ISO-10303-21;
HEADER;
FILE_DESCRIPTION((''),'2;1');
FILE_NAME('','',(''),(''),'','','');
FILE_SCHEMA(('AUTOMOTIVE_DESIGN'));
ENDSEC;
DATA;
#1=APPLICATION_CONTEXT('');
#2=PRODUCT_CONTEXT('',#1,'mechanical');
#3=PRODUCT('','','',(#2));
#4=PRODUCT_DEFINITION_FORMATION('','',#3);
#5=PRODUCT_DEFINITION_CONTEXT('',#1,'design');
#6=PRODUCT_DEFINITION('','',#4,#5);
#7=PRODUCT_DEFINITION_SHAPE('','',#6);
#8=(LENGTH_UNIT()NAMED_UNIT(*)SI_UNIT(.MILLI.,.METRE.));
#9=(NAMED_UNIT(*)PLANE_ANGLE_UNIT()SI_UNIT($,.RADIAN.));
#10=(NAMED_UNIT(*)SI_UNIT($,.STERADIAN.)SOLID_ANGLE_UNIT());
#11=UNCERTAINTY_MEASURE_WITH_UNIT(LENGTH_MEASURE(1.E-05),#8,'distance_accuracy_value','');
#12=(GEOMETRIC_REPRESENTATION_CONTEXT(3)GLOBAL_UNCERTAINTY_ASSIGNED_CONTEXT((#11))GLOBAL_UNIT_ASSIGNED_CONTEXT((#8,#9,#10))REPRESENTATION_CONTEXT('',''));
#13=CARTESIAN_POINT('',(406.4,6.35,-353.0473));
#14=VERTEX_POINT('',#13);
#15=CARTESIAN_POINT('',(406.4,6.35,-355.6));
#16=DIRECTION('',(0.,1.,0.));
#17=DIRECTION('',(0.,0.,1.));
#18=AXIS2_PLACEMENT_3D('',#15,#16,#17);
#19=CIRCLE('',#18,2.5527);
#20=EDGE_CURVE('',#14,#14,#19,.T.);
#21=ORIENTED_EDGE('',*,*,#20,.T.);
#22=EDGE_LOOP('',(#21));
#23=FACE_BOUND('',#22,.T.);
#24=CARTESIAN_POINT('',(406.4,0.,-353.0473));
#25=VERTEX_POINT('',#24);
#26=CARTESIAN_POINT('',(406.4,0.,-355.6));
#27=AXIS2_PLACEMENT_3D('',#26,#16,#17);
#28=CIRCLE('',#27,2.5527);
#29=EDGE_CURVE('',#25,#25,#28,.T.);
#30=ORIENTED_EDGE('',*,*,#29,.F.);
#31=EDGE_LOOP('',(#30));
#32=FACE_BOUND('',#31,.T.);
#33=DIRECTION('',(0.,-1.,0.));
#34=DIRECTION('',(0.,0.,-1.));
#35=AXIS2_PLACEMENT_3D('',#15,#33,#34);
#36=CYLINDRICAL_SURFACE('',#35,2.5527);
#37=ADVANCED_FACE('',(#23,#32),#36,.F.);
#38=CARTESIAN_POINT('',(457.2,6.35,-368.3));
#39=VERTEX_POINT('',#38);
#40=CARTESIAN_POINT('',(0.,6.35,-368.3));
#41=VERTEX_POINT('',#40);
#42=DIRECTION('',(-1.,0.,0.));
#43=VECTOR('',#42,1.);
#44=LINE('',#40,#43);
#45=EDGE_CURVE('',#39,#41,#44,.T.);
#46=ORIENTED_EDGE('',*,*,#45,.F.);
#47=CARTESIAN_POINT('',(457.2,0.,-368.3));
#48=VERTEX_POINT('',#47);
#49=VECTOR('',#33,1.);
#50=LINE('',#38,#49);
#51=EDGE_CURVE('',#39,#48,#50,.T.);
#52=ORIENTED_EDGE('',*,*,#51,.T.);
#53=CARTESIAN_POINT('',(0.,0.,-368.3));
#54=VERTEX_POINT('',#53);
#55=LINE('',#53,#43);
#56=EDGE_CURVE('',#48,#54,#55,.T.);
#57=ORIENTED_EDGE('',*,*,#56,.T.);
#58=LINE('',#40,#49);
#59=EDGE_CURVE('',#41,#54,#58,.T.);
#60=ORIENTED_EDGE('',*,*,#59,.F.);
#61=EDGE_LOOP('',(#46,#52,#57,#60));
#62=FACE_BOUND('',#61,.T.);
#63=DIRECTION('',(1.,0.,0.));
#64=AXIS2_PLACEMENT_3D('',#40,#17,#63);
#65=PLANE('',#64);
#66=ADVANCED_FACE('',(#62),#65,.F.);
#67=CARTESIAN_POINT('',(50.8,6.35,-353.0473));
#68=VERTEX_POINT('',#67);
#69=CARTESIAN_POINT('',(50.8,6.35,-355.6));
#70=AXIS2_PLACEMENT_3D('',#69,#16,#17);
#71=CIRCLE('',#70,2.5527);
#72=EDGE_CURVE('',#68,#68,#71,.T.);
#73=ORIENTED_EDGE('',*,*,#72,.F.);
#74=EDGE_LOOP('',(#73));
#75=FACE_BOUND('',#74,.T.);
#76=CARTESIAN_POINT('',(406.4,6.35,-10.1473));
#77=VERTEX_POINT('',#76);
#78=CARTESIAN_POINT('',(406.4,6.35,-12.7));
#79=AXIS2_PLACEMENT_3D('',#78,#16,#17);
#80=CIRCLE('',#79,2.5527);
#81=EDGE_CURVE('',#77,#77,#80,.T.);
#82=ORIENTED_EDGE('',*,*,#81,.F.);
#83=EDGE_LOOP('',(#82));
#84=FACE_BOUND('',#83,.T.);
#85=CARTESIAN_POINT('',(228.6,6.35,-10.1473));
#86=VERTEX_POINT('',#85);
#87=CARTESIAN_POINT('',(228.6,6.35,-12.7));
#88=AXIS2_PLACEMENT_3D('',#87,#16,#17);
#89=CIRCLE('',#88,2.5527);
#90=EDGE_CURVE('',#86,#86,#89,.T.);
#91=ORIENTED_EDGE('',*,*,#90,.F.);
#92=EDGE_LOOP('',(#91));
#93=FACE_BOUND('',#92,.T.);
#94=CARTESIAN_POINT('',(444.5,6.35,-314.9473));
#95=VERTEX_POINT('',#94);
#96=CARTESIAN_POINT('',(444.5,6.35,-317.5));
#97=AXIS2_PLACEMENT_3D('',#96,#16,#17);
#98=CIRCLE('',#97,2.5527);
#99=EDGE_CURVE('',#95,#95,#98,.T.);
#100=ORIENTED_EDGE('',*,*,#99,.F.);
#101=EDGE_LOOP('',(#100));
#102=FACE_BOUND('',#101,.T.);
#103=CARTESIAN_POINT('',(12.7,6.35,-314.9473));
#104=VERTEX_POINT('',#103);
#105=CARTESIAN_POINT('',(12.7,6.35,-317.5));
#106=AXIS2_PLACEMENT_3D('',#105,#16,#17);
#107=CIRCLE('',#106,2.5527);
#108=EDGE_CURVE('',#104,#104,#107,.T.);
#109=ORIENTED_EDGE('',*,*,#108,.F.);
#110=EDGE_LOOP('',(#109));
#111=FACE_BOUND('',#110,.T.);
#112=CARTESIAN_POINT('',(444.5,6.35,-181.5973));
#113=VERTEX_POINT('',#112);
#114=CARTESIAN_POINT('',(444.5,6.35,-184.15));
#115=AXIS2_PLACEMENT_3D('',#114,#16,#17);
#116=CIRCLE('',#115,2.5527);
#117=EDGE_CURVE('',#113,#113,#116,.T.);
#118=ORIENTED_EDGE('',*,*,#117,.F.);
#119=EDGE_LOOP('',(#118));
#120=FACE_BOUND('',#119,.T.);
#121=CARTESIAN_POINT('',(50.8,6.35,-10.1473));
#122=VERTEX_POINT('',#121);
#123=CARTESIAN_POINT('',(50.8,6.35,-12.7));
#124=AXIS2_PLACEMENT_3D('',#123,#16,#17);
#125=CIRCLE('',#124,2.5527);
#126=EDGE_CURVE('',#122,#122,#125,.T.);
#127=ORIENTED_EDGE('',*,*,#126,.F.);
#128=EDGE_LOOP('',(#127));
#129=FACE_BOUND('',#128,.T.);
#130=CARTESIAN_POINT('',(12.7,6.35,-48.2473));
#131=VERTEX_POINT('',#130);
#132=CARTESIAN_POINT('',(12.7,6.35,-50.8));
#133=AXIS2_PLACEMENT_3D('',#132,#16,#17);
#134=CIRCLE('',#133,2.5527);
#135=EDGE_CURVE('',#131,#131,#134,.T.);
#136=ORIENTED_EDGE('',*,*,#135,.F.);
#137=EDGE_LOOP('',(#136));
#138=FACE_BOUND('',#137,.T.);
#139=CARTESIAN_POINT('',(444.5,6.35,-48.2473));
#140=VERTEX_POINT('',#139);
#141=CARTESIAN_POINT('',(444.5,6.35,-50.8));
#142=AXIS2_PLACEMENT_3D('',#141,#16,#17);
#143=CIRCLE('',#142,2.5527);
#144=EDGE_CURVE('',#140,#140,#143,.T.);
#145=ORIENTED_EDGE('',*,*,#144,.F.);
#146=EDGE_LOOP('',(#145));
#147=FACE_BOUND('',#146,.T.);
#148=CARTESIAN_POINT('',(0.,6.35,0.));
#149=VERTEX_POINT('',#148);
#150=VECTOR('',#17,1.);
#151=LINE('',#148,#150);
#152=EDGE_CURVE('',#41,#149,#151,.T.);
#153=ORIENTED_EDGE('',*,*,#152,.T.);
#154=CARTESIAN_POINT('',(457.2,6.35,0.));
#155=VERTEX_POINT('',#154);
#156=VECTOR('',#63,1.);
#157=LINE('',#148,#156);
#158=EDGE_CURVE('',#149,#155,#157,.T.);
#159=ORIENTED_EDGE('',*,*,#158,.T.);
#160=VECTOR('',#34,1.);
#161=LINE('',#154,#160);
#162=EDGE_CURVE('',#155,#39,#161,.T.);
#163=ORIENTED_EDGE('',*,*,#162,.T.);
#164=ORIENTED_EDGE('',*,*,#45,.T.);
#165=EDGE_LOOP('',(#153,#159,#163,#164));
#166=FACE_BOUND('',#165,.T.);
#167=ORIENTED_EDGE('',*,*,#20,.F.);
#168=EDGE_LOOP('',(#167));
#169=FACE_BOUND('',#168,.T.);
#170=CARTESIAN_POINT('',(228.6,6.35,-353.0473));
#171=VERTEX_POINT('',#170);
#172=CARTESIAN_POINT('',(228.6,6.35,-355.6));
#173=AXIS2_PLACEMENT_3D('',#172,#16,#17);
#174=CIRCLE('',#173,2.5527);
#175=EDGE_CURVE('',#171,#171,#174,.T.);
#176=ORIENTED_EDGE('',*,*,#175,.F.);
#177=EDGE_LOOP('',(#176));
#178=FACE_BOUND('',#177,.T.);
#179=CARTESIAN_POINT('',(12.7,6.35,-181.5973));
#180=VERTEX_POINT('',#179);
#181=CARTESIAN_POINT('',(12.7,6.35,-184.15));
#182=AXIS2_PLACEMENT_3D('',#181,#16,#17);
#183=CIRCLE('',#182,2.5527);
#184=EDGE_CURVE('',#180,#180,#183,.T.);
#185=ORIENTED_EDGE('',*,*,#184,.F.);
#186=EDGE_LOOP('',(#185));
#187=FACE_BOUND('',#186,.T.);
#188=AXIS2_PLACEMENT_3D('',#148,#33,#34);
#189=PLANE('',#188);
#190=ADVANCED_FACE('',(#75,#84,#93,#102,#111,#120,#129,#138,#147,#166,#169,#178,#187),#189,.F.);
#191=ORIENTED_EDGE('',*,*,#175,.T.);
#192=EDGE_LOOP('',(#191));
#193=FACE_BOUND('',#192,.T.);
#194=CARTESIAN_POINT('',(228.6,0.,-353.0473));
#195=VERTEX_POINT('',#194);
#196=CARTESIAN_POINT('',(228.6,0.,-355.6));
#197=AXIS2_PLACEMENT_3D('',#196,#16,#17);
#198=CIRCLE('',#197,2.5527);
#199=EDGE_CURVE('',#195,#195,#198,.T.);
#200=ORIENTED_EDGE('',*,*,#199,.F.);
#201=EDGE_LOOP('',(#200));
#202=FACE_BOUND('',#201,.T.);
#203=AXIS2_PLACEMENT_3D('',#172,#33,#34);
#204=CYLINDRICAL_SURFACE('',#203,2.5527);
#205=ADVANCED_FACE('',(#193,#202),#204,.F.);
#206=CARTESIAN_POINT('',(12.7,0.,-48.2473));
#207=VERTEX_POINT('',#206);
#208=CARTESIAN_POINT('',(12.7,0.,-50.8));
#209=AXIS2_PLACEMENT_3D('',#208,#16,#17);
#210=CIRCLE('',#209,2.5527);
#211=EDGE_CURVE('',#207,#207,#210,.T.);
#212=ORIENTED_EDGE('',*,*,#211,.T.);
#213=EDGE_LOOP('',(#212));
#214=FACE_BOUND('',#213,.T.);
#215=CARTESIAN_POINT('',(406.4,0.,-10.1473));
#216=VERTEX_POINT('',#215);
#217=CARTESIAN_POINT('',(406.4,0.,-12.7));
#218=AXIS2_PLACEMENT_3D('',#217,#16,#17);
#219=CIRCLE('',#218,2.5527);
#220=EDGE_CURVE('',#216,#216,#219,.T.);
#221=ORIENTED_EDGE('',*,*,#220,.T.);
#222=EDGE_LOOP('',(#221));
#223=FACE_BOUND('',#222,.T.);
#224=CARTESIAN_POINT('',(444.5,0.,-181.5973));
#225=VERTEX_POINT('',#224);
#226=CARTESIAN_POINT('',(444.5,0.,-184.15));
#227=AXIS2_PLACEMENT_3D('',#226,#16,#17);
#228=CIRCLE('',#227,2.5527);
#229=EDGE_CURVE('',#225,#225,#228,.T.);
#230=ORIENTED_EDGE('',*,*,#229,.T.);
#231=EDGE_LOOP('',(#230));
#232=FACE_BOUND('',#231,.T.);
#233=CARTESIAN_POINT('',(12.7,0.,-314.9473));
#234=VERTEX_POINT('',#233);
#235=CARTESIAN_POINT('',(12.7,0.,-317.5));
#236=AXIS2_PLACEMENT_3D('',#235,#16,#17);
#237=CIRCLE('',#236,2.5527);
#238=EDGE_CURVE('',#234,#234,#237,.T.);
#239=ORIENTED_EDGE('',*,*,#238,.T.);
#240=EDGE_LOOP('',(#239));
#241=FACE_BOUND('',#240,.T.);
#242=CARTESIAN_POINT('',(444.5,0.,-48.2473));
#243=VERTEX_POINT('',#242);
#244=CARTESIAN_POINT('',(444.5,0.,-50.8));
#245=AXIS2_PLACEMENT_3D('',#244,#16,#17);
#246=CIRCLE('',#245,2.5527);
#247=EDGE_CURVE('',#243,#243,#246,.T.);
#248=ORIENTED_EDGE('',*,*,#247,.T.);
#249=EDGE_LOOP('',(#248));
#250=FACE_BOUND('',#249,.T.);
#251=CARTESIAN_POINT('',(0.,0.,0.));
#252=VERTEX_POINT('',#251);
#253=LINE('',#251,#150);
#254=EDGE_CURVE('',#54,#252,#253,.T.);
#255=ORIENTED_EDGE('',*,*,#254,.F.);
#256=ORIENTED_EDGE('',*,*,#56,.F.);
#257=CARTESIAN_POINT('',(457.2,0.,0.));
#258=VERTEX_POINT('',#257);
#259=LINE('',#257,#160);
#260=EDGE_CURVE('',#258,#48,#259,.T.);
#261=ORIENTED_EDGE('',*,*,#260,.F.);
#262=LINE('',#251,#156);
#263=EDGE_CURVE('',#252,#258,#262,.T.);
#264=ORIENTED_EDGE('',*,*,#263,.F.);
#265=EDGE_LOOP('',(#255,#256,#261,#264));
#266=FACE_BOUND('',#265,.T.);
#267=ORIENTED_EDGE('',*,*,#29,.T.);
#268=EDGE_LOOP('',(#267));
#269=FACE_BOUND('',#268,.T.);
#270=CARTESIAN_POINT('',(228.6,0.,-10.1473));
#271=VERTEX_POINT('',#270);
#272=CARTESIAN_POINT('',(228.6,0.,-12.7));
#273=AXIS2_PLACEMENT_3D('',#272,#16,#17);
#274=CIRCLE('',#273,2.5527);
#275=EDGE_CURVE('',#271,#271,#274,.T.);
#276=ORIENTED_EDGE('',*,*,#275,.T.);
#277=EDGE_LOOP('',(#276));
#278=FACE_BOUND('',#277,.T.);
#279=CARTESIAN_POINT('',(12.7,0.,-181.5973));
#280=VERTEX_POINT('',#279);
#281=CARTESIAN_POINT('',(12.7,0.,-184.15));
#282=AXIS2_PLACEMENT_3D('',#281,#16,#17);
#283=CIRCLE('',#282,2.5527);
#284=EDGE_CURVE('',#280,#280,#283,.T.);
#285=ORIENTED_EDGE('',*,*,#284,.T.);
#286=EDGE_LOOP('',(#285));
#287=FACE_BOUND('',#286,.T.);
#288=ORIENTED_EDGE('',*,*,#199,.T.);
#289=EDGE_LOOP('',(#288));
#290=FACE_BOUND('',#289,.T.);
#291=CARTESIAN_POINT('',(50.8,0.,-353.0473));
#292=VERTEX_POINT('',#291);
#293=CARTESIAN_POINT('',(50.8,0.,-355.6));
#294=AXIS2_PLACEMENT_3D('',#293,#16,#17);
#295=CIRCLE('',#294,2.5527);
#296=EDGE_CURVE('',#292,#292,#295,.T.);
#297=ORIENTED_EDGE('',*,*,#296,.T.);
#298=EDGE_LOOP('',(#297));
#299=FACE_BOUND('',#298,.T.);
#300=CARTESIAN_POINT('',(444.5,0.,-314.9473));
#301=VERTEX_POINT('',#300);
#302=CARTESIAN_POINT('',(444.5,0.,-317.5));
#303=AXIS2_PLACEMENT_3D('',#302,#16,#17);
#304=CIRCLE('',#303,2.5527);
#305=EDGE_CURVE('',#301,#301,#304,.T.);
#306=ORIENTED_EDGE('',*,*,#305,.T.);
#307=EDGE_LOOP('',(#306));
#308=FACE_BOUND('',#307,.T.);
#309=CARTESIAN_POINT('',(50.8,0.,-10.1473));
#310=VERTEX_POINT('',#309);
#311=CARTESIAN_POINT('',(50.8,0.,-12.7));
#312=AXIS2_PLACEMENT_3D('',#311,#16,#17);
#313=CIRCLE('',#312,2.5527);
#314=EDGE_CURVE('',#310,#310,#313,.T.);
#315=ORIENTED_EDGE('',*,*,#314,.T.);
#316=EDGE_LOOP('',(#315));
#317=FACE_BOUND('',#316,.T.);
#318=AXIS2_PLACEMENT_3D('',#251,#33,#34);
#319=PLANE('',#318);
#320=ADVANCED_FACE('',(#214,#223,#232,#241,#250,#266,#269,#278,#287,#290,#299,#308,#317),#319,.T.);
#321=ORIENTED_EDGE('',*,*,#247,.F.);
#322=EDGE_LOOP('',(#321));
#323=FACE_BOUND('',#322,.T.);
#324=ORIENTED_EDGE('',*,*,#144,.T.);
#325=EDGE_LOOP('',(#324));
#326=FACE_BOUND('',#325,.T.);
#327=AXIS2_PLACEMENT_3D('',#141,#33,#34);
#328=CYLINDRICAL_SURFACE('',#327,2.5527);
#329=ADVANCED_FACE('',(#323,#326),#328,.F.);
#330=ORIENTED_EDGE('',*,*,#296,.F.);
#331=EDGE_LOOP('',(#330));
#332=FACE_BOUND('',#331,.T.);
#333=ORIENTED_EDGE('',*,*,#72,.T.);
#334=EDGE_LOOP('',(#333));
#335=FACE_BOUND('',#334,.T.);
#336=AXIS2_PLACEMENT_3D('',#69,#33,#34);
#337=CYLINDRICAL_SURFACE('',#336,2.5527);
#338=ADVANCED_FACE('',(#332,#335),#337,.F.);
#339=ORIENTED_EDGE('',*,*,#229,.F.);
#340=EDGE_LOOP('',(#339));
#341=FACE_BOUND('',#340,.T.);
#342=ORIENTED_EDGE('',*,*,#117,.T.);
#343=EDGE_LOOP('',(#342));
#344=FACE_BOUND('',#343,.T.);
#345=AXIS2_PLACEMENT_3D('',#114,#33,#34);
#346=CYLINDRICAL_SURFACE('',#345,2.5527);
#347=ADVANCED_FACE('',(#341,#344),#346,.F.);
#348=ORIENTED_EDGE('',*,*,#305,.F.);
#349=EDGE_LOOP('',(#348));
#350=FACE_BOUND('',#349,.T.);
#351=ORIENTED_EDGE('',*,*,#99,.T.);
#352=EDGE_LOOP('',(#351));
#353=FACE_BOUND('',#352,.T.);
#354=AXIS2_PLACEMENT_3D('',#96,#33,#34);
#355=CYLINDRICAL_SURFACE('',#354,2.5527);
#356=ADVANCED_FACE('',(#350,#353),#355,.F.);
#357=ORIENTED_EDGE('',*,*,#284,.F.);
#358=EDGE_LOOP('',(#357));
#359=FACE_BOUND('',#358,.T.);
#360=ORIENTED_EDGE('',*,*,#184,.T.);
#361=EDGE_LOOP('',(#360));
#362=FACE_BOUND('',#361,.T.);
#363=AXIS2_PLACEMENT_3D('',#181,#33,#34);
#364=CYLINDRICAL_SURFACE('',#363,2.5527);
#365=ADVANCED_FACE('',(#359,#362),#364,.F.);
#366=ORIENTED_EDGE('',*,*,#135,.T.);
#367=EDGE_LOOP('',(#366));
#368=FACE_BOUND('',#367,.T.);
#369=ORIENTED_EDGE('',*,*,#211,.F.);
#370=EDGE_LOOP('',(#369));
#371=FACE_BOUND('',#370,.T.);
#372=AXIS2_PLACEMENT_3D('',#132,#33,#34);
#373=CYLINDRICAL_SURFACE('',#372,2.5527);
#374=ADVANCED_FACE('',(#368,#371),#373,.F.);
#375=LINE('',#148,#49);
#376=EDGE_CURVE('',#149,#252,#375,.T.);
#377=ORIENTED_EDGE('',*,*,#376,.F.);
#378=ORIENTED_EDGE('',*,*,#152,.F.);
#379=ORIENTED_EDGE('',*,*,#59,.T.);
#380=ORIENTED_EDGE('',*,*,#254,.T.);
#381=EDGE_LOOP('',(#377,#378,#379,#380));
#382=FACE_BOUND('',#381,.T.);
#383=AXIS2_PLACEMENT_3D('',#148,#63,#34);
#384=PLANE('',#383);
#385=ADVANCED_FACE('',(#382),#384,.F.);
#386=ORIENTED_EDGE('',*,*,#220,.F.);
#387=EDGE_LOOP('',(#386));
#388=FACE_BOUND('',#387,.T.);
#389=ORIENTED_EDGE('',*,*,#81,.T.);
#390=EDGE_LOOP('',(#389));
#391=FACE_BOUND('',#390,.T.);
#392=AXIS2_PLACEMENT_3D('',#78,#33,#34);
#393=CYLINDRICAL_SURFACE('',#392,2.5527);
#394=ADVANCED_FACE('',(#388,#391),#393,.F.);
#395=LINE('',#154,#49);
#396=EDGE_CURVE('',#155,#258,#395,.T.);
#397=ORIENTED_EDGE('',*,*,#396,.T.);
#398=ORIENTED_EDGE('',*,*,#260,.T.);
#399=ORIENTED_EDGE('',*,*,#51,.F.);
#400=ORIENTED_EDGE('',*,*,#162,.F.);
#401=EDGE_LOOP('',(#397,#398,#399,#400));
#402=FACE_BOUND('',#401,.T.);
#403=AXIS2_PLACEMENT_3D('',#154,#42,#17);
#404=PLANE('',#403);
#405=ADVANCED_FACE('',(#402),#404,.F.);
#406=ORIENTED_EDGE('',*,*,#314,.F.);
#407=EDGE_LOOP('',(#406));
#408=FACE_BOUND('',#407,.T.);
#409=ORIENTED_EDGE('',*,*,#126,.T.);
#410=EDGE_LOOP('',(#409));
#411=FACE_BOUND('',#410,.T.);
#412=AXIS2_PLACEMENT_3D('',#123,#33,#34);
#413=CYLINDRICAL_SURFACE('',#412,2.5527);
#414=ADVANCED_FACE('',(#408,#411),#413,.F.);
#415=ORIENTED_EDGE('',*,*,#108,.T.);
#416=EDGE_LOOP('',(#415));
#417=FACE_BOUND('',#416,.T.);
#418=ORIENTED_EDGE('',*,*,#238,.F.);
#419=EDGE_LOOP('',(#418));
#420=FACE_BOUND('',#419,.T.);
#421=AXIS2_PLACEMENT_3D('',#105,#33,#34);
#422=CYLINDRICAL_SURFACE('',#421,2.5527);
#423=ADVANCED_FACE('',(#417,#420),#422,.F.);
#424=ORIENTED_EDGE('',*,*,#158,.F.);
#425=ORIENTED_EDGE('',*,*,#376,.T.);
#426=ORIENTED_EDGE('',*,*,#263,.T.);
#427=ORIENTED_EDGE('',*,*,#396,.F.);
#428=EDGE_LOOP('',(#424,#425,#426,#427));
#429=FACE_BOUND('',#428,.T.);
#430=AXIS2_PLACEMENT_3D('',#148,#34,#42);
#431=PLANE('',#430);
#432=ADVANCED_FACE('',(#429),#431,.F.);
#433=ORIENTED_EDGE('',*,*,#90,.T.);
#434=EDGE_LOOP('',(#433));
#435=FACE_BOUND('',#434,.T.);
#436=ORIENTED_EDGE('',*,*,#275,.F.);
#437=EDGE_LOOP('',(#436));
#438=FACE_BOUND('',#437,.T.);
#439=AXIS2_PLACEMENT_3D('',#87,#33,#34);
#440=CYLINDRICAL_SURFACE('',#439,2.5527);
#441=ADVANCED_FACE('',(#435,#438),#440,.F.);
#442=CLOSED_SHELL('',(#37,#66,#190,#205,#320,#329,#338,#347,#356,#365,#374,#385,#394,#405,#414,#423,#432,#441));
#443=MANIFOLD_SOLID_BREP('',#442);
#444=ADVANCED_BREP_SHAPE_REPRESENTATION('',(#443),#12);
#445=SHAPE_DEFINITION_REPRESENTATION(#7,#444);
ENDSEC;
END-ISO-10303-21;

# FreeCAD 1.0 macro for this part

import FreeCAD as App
import Part
import Sketcher
from FreeCAD import Vector
Q = App.Units.Quantity

doc = App.newDocument("Part")
body = doc.addObject("PartDesign::Body", "Body")

sketch1 = body.newObject("Sketcher::SketchObject", "Sketch")
sketch1.AttachmentSupport = (doc.getObject("XZ_Plane"), [""])
sketch1.MapMode = "FlatFace"
sketch1.addGeometry([
    Part.LineSegment(Vector(0, -368.3, 0), Vector(0, 0, 0)),
    Part.LineSegment(Vector(0, 0, 0), Vector(457.2, 0, 0)),
    Part.LineSegment(Vector(457.2, 0, 0), Vector(457.2, -368.3, 0)),
    Part.LineSegment(Vector(457.2, -368.3, 0), Vector(0, -368.3, 0)),
    Part.Circle(Vector(50.8, -12.7, 0), Vector(0, 0, 1), 2.5527),
    Part.Circle(Vector(12.7, -50.8, 0), Vector(0, 0, 1), 2.5527),
    Part.Circle(Vector(12.7, -184.15, 0), Vector(0, 0, 1), 2.5527),
    Part.Circle(Vector(228.6, -12.7, 0), Vector(0, 0, 1), 2.5527),
    Part.Circle(Vector(406.4, -12.7, 0), Vector(0, 0, 1), 2.5527),
    Part.Circle(Vector(444.5, -50.8, 0), Vector(0, 0, 1), 2.5527),
    Part.Circle(Vector(444.5, -184.15, 0), Vector(0, 0, 1), 2.5527),
    Part.Circle(Vector(12.7, -317.5, 0), Vector(0, 0, 1), 2.5527),
    Part.Circle(Vector(50.8, -355.6, 0), Vector(0, 0, 1), 2.5527),
    Part.Circle(Vector(228.6, -355.6, 0), Vector(0, 0, 1), 2.5527),
    Part.Circle(Vector(444.5, -317.5, 0), Vector(0, 0, 1), 2.5527),
    Part.Circle(Vector(406.4, -355.6, 0), Vector(0, 0, 1), 2.5527),
], False)
sketch1.addConstraint([
    Sketcher.Constraint("Coincident", 0, 2, 1, 1),
    Sketcher.Constraint("Coincident", 1, 2, 2, 1),
    Sketcher.Constraint("Coincident", 2, 2, 3, 1),
    Sketcher.Constraint("Coincident", 3, 2, 0, 1),
    Sketcher.Constraint("Vertical", 0),
    Sketcher.Constraint("Horizontal", 1),
    Sketcher.Constraint("Vertical", 2),
    Sketcher.Constraint("Horizontal", 3),
    Sketcher.Constraint("Coincident", 0, 2, -1, 1),
    Sketcher.Constraint("Equal", 4, 5),
    Sketcher.Constraint("Equal", 5, 6),
    Sketcher.Constraint("Equal", 6, 7),
    Sketcher.Constraint("Equal", 7, 8),
    Sketcher.Constraint("Equal", 8, 9),
    Sketcher.Constraint("Equal", 9, 10),
    Sketcher.Constraint("Equal", 10, 11),
    Sketcher.Constraint("Equal", 11, 12),
    Sketcher.Constraint("Equal", 12, 13),
    Sketcher.Constraint("Equal", 13, 14),
    Sketcher.Constraint("Equal", 14, 15),
    Sketcher.Constraint("Horizontal", 4, 3, 7, 3),
    Sketcher.Constraint("Horizontal", 7, 3, 8, 3),
    Sketcher.Constraint("Horizontal", 5, 3, 9, 3),
    Sketcher.Constraint("Horizontal", 6, 3, 10, 3),
    Sketcher.Constraint("Horizontal", 12, 3, 13, 3),
    Sketcher.Constraint("Horizontal", 11, 3, 14, 3),
    Sketcher.Constraint("Horizontal", 13, 3, 15, 3),
    Sketcher.Constraint("Vertical", 5, 3, 6, 3),
    Sketcher.Constraint("Vertical", 9, 3, 10, 3),
    Sketcher.Constraint("Vertical", 6, 3, 11, 3),
    Sketcher.Constraint("Vertical", 4, 3, 12, 3),
    Sketcher.Constraint("Vertical", 7, 3, 13, 3),
    Sketcher.Constraint("Vertical", 10, 3, 14, 3),
    Sketcher.Constraint("Vertical", 8, 3, 15, 3),
    Sketcher.Constraint("DistanceX", 1, 1, 1, 2, Q("18 in")),
    Sketcher.Constraint("Diameter", 4, Q("0.201 in")),
    Sketcher.Constraint("DistanceY", 0, 1, 0, 2, Q("14.5 in")),
    Sketcher.Constraint("DistanceX", -1, 1, 4, 3, Q("2 in")),
    Sketcher.Constraint("DistanceY", 5, 3, -1, 1, Q("2 in")),
    Sketcher.Constraint("DistanceX", -1, 1, 7, 3, Q("9 in")),
    Sketcher.Constraint("DistanceX", -1, 1, 8, 3, Q("16 in")),
    Sketcher.Constraint("DistanceY", 12, 3, -1, 1, Q("14 in")),
    Sketcher.Constraint("DistanceX", 5, 3, 9, 3, Q("17 in")),
    Sketcher.Constraint("DistanceY", 11, 3, 4, 3, Q("12 in")),
    Sketcher.Constraint("DistanceY", 2, 2, 14, 3, Q("2 in")),
    Sketcher.Constraint("DistanceX", -1, 1, 5, 3, Q("0.5 in")),
    Sketcher.Constraint("DistanceY", 6, 3, -1, 1, Q("7.25 in")),
])
pad1 = body.newObject("PartDesign::Pad", "Pad")
pad1.Profile = sketch1
pad1.Length = Q("0.25 in")
pad1.Reversed = True

doc.recompute()
